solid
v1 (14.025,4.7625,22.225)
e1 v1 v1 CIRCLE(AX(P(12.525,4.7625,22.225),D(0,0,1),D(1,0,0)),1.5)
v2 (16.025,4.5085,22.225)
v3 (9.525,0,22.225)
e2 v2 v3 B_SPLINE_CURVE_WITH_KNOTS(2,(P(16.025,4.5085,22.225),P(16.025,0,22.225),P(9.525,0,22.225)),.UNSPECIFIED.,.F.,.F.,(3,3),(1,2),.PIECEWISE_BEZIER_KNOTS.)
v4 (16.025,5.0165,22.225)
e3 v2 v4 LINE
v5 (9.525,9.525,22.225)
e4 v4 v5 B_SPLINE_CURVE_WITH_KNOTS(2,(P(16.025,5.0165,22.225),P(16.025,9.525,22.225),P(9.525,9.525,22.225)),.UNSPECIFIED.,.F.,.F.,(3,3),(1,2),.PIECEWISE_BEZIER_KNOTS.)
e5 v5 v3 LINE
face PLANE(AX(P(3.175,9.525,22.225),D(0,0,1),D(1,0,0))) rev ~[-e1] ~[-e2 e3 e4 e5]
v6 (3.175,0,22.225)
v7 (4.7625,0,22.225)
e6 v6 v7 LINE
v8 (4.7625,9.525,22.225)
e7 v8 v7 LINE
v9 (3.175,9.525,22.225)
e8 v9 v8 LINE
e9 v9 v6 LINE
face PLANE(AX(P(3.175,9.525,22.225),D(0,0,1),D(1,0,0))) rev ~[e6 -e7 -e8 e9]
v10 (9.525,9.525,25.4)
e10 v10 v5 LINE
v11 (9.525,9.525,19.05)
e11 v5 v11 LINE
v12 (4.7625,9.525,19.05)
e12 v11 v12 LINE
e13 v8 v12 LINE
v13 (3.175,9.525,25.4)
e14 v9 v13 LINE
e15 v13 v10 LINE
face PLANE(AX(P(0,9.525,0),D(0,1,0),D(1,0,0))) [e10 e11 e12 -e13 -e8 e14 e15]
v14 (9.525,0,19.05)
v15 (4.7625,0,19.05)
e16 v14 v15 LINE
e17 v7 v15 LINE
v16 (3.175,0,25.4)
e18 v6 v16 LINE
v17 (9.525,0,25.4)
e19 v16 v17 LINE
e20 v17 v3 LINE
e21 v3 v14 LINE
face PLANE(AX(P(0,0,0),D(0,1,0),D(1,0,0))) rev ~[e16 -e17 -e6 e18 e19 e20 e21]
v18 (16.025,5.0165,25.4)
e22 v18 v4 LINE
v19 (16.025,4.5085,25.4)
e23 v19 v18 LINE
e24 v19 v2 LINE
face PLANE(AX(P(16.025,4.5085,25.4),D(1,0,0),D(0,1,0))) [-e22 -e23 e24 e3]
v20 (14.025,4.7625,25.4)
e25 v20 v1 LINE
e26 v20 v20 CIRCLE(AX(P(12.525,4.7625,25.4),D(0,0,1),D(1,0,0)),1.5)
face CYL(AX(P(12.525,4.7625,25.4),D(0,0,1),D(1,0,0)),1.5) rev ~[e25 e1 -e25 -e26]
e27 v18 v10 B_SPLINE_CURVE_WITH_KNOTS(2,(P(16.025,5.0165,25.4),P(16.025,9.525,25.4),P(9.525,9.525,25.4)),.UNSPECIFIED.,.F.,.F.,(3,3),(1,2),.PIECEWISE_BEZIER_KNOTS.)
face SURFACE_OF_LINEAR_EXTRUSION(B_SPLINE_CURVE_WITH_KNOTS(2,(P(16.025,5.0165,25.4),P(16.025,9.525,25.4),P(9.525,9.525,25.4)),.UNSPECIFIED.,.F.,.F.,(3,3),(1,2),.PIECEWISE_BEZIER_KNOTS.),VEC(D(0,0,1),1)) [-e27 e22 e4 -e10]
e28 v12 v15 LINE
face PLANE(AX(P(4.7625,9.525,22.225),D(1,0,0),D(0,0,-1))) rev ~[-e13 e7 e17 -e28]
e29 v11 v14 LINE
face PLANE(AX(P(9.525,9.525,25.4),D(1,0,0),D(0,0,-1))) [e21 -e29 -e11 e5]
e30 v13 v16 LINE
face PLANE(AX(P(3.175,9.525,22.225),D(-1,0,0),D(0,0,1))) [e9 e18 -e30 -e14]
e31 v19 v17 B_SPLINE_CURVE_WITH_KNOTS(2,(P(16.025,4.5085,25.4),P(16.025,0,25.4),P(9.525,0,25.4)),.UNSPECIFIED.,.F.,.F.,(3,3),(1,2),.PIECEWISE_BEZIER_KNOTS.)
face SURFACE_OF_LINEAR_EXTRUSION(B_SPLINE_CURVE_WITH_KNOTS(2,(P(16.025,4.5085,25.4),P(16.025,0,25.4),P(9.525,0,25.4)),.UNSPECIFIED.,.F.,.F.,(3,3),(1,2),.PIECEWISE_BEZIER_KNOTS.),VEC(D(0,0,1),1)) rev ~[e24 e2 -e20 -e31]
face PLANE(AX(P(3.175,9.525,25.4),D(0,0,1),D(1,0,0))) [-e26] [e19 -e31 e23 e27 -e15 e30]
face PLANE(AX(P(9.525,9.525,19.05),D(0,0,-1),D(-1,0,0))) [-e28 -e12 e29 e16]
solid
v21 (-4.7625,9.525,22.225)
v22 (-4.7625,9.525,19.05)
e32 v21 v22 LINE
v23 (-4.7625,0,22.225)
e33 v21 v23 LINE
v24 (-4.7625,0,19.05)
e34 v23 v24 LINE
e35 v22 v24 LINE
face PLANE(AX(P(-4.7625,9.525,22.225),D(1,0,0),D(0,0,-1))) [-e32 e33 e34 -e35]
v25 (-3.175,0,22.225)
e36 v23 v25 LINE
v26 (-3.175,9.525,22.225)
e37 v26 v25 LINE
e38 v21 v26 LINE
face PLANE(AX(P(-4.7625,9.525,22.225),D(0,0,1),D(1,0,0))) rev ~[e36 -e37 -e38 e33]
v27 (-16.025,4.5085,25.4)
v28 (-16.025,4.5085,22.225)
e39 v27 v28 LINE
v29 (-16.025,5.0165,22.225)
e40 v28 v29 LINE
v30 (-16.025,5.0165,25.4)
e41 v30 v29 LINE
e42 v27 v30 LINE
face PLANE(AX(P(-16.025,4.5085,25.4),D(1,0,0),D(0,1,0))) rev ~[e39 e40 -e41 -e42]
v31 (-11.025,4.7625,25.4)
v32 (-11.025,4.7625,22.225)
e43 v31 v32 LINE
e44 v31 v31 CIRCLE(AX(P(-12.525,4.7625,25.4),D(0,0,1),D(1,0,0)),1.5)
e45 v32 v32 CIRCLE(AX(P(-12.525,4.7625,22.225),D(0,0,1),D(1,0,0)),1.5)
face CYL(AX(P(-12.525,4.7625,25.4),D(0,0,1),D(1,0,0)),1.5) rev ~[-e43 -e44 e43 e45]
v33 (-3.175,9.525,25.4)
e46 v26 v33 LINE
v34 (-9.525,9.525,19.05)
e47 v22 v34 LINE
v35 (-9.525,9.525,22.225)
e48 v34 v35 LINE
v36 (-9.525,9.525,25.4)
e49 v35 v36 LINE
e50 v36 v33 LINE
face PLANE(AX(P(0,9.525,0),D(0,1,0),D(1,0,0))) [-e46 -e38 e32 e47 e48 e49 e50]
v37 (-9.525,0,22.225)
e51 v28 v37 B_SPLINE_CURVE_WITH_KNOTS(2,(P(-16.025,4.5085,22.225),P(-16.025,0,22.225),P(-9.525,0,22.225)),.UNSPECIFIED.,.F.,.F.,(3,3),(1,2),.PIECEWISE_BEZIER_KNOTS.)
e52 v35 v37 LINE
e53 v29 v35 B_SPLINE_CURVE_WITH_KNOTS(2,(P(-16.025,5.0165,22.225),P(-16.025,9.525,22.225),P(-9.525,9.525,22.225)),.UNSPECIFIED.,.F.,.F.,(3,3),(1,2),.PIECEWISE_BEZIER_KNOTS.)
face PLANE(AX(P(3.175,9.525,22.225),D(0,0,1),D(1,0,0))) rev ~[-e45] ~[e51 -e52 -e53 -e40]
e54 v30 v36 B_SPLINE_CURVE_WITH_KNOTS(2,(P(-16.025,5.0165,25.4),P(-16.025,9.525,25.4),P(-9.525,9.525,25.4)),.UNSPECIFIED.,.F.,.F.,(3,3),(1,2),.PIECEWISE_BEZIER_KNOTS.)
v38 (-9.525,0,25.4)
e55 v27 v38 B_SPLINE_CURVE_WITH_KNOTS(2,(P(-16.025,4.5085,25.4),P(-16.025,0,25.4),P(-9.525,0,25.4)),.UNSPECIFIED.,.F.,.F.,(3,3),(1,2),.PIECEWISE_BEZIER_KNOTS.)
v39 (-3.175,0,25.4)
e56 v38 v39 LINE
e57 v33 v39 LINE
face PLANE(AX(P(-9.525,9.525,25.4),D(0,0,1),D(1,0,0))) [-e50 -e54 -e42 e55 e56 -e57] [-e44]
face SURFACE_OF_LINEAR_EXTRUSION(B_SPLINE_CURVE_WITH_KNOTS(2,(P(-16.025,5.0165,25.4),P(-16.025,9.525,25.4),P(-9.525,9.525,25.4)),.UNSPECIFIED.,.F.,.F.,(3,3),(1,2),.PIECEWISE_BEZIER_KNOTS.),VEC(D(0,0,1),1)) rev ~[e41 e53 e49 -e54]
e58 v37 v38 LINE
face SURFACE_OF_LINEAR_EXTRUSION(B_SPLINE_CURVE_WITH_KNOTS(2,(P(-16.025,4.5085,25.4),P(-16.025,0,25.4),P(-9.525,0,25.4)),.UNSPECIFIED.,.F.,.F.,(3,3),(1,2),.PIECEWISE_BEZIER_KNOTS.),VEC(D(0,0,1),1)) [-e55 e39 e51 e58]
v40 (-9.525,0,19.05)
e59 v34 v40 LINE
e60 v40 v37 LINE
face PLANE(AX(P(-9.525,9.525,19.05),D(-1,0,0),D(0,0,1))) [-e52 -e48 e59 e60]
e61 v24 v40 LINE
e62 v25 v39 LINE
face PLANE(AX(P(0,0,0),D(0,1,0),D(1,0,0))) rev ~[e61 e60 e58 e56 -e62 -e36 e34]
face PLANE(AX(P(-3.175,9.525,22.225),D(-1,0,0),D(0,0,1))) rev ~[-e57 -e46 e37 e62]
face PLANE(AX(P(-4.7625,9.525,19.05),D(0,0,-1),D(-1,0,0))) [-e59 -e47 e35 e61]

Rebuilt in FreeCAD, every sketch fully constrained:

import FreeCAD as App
import Part
import Sketcher
Q = App.Units.Quantity

doc = App.newDocument("Part")
body = doc.addObject("PartDesign::Body", "Body")
body.AllowCompound = True

sketch1 = body.newObject("Sketcher::SketchObject", "Sketch")
sketch1.AttachmentSupport = (doc.getObject("XZ_Plane"), [""])
sketch1.MapMode = "FlatFace"
sketch1.AttachmentOffset = App.Placement(App.Vector(0, 0, -0.375 * 25.4), App.Rotation())
sketch1.addGeometry(Part.LineSegment(App.Vector(9.525, 25.4, 0), App.Vector(9.525, 19.05, 0)), False)
sketch1.addGeometry(Part.LineSegment(App.Vector(9.525, 19.05, 0), App.Vector(4.7625, 19.05, 0)), False)
sketch1.addGeometry(Part.LineSegment(App.Vector(4.7625, 19.05, 0), App.Vector(4.7625, 22.225, 0)), False)
sketch1.addGeometry(Part.LineSegment(App.Vector(4.7625, 22.225, 0), App.Vector(3.175, 22.225, 0)), False)
sketch1.addGeometry(Part.LineSegment(App.Vector(3.175, 22.225, 0), App.Vector(3.175, 25.4, 0)), False)
sketch1.addGeometry(Part.LineSegment(App.Vector(3.175, 25.4, 0), App.Vector(9.525, 25.4, 0)), False)
sketch1.addGeometry(Part.LineSegment(App.Vector(-4.7625, 22.225, 0), App.Vector(-4.7625, 19.05, 0)), False)
sketch1.addGeometry(Part.LineSegment(App.Vector(-4.7625, 19.05, 0), App.Vector(-9.525, 19.05, 0)), False)
sketch1.addGeometry(Part.LineSegment(App.Vector(-9.525, 19.05, 0), App.Vector(-9.525, 25.4, 0)), False)
sketch1.addGeometry(Part.LineSegment(App.Vector(-9.525, 25.4, 0), App.Vector(-3.175, 25.4, 0)), False)
sketch1.addGeometry(Part.LineSegment(App.Vector(-3.175, 25.4, 0), App.Vector(-3.175, 22.225, 0)), False)
sketch1.addGeometry(Part.LineSegment(App.Vector(-3.175, 22.225, 0), App.Vector(-4.7625, 22.225, 0)), False)
sketch1.addConstraint(Sketcher.Constraint("Coincident", 0, 2, 1, 1))
sketch1.addConstraint(Sketcher.Constraint("Coincident", 1, 2, 2, 1))
sketch1.addConstraint(Sketcher.Constraint("Coincident", 2, 2, 3, 1))
sketch1.addConstraint(Sketcher.Constraint("Coincident", 3, 2, 4, 1))
sketch1.addConstraint(Sketcher.Constraint("Coincident", 4, 2, 5, 1))
sketch1.addConstraint(Sketcher.Constraint("Coincident", 5, 2, 0, 1))
sketch1.addConstraint(Sketcher.Constraint("Coincident", 6, 2, 7, 1))
sketch1.addConstraint(Sketcher.Constraint("Coincident", 7, 2, 8, 1))
sketch1.addConstraint(Sketcher.Constraint("Coincident", 8, 2, 9, 1))
sketch1.addConstraint(Sketcher.Constraint("Coincident", 9, 2, 10, 1))
sketch1.addConstraint(Sketcher.Constraint("Coincident", 10, 2, 11, 1))
sketch1.addConstraint(Sketcher.Constraint("Coincident", 11, 2, 6, 1))
sketch1.addConstraint(Sketcher.Constraint("Vertical", 0))
sketch1.addConstraint(Sketcher.Constraint("Horizontal", 1))
sketch1.addConstraint(Sketcher.Constraint("Vertical", 2))
sketch1.addConstraint(Sketcher.Constraint("Horizontal", 3))
sketch1.addConstraint(Sketcher.Constraint("Vertical", 4))
sketch1.addConstraint(Sketcher.Constraint("Horizontal", 5))
sketch1.addConstraint(Sketcher.Constraint("Vertical", 6))
sketch1.addConstraint(Sketcher.Constraint("Horizontal", 7))
sketch1.addConstraint(Sketcher.Constraint("Vertical", 8))
sketch1.addConstraint(Sketcher.Constraint("Horizontal", 9))
sketch1.addConstraint(Sketcher.Constraint("Vertical", 10))
sketch1.addConstraint(Sketcher.Constraint("Horizontal", 11))
sketch1.addConstraint(Sketcher.Constraint("Symmetric", 1, 2, 6, 2, -2))
sketch1.addConstraint(Sketcher.Constraint("Symmetric", 5, 2, 8, 2, -2))
sketch1.addConstraint(Sketcher.Constraint("Symmetric", 3, 2, 10, 2, -2))
sketch1.addConstraint(Sketcher.Constraint("Equal", 9, 0))
sketch1.addConstraint(Sketcher.Constraint("Equal", 2, 4))
sketch1.addConstraint(Sketcher.Constraint("DistanceY", -1, 1, 4, 2, Q("1 in")))
sketch1.addConstraint(Sketcher.Constraint("DistanceX", 5, 1, 5, 2, Q("0.25 in")))
sketch1.addConstraint(Sketcher.Constraint("DistanceX", 7, 2, 3, 2, Q("0.5 in")))
sketch1.addConstraint(Sketcher.Constraint("DistanceX", 1, 2, 1, 1, Q("0.1875 in")))
pad1 = body.newObject("PartDesign::Pad", "Pad")
pad1.Profile = sketch1
pad1.Length = Q("0.375 in")

sketch2 = body.newObject("Sketcher::SketchObject", "Sketch001")
sketch2.AttachmentSupport = (doc.getObject("XY_Plane"), [""])
sketch2.MapMode = "FlatFace"
sketch2.AttachmentOffset = App.Placement(App.Vector(0, 0, 1 * 25.4), App.Rotation())
sketch2.addGeometry(Part.BSplineCurve([App.Vector(16.025, 4.5085, 0), App.Vector(16.025, 0, 0), App.Vector(9.525, 0, 0)], [3, 3], [1, 2], False, 2, [1, 1, 1], False), False)
sketch2.addGeometry(Part.LineSegment(App.Vector(16.025, 4.5085, 0), App.Vector(16.025, 5.0165, 0)), False)
sketch2.addGeometry(Part.BSplineCurve([App.Vector(16.025, 5.0165, 0), App.Vector(16.025, 9.525, 0), App.Vector(9.525, 9.525, 0)], [3, 3], [1, 2], False, 2, [1, 1, 1], False), False)
sketch2.addGeometry(Part.LineSegment(App.Vector(9.525, 9.525, 0), App.Vector(9.525, 0, 0)), False)
sketch2.addGeometry(Part.Circle(App.Vector(12.525, 4.7625, 0), App.Vector(0, 0, 1), 1.5), False)
sketch2.addGeometry(Part.LineSegment(App.Vector(-16.025, 5.0165, 0), App.Vector(-16.025, 4.5085, 0)), False)
sketch2.addGeometry(Part.BSplineCurve([App.Vector(-16.025, 4.5085, 0), App.Vector(-16.025, 0, 0), App.Vector(-9.525, 0, 0)], [3, 3], [1, 2], False, 2, [1, 1, 1], False), False)
sketch2.addGeometry(Part.LineSegment(App.Vector(-9.525, 0, 0), App.Vector(-9.525, 9.525, 0)), False)
sketch2.addGeometry(Part.BSplineCurve([App.Vector(-16.025, 5.0165, 0), App.Vector(-16.025, 9.525, 0), App.Vector(-9.525, 9.525, 0)], [3, 3], [1, 2], False, 2, [1, 1, 1], False), False)
sketch2.addGeometry(Part.Circle(App.Vector(-12.525, 4.7625, 0), App.Vector(0, 0, 1), 1.5), False)
sketch2.addConstraint(Sketcher.Constraint("Block", 0))
sketch2.addConstraint(Sketcher.Constraint("Block", 2))
sketch2.addConstraint(Sketcher.Constraint("Block", 6))
sketch2.addConstraint(Sketcher.Constraint("Block", 8))
sketch2.addConstraint(Sketcher.Constraint("Coincident", 0, 1, 1, 1))
sketch2.addConstraint(Sketcher.Constraint("Coincident", 1, 2, 2, 1))
sketch2.addConstraint(Sketcher.Constraint("Coincident", 2, 2, 3, 1))
sketch2.addConstraint(Sketcher.Constraint("Coincident", 3, 2, 0, 2))
sketch2.addConstraint(Sketcher.Constraint("Coincident", 5, 2, 6, 1))
sketch2.addConstraint(Sketcher.Constraint("Coincident", 6, 2, 7, 1))
sketch2.addConstraint(Sketcher.Constraint("Coincident", 7, 2, 8, 2))
sketch2.addConstraint(Sketcher.Constraint("Coincident", 8, 1, 5, 1))
sketch2.addConstraint(Sketcher.Constraint("Equal", 4, 9))
sketch2.addConstraint(Sketcher.Constraint("Symmetric", 4, 3, 9, 3, -2))
sketch2.addConstraint(Sketcher.Constraint("Diameter", 4, Q("0.1181 in")))
sketch2.addConstraint(Sketcher.Constraint("DistanceX", 3, 2, 4, 3, Q("0.1181 in")))
sketch2.addConstraint(Sketcher.Constraint("DistanceY", 4, 3, 1, 2, Q("0.01 in")))
pad2 = body.newObject("PartDesign::Pad", "Pad001")
pad2.Profile = sketch2
pad2.Length = Q("0.125 in")
pad2.Reversed = True

doc.recompute()
